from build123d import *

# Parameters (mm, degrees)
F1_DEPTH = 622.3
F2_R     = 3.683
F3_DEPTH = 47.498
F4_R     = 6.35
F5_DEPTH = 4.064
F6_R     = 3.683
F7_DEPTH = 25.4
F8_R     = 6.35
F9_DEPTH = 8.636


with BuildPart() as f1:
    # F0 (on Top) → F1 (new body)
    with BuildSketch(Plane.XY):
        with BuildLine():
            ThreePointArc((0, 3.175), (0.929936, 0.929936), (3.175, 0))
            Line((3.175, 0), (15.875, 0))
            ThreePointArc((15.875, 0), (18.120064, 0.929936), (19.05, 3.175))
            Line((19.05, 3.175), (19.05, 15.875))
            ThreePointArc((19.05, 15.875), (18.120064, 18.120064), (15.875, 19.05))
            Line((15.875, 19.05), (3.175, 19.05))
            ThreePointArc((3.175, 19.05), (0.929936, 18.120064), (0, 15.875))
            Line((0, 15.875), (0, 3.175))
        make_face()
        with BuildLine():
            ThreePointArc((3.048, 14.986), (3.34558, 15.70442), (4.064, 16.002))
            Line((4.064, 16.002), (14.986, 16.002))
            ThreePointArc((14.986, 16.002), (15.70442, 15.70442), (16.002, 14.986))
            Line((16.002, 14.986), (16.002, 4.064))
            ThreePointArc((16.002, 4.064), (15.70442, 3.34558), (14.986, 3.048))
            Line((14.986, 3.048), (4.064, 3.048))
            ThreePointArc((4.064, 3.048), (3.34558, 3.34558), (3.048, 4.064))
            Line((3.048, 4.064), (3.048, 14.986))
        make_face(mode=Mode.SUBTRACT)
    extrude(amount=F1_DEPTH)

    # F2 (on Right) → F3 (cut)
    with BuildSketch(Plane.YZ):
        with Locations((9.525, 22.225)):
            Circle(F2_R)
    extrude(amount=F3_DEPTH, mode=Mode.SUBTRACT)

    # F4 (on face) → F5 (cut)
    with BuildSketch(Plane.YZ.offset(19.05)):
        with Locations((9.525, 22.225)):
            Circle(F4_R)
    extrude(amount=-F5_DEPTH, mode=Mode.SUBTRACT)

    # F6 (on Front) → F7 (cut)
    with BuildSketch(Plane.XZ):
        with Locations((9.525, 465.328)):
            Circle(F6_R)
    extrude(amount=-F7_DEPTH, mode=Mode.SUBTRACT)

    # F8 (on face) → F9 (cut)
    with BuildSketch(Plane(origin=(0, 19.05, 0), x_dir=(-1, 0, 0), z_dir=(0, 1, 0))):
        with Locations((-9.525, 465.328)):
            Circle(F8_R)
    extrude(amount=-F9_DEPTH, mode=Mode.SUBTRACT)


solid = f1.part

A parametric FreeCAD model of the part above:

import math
import FreeCAD as App
import Part
import Sketcher

V = App.Vector
Q = App.Units.Quantity

doc = App.newDocument("Part")
body = doc.addObject("PartDesign::Body", "Body")

# Sketch on XY plane
sketch1 = doc.addObject("Sketcher::SketchObject", "Sketch")
body.addObject(sketch1)
sketch1.AttachmentSupport = (doc.XY_Plane, [""])
sketch1.MapMode = "FlatFace"
sketch1.addGeometry(Part.ArcOfCircle(Part.Circle(V(3.175, 3.175, 0), V(0, 0, 1), 3.175), math.radians(-179.999998), math.radians(-90.000002)), False)
sketch1.addGeometry(Part.LineSegment(V(3.175, 0, 0), V(15.875, 0, 0)), False)
sketch1.addGeometry(Part.ArcOfCircle(Part.Circle(V(15.875, 3.175, 0), V(0, 0, 1), 3.175), math.radians(-89.999998), math.radians(-0.000002)), False)
sketch1.addGeometry(Part.LineSegment(V(19.05, 3.175, 0), V(19.05, 15.875, 0)), False)
sketch1.addGeometry(Part.ArcOfCircle(Part.Circle(V(15.875, 15.875, 0), V(0, 0, 1), 3.175), math.radians(0.000002), math.radians(89.999998)), False)
sketch1.addGeometry(Part.LineSegment(V(15.875, 19.05, 0), V(3.175, 19.05, 0)), False)
sketch1.addGeometry(Part.ArcOfCircle(Part.Circle(V(3.175, 15.875, 0), V(0, 0, 1), 3.175), math.radians(90.000002), math.radians(179.999998)), False)
sketch1.addGeometry(Part.LineSegment(V(0, 15.875, 0), V(0, 3.175, 0)), False)
sketch1.addGeometry(Part.LineSegment(V(3.048, 4.064, 0), V(3.048, 14.986, 0)), False)
sketch1.addGeometry(Part.ArcOfCircle(Part.Circle(V(4.064002, 14.985998, 0), V(0, 0, 1), 1.016002), math.radians(90.000094), math.radians(179.999906)), False)
sketch1.addGeometry(Part.LineSegment(V(4.064, 16.002, 0), V(14.986, 16.002, 0)), False)
sketch1.addGeometry(Part.ArcOfCircle(Part.Circle(V(14.985998, 14.985998, 0), V(0, 0, 1), 1.016002), math.radians(0.000094), math.radians(89.999906)), False)
sketch1.addGeometry(Part.LineSegment(V(16.002, 14.986, 0), V(16.002, 4.064, 0)), False)
sketch1.addGeometry(Part.ArcOfCircle(Part.Circle(V(14.985998, 4.064002, 0), V(0, 0, 1), 1.016002), math.radians(-89.999906), math.radians(-0.000094)), False)
sketch1.addGeometry(Part.LineSegment(V(14.986, 3.048, 0), V(4.064, 3.048, 0)), False)
sketch1.addGeometry(Part.ArcOfCircle(Part.Circle(V(4.064002, 4.064002, 0), V(0, 0, 1), 1.016002), math.radians(-179.999906), math.radians(-90.000094)), False)
sketch1.addConstraint(Sketcher.Constraint("Tangent", 0, 2, 1, 1))
sketch1.addConstraint(Sketcher.Constraint("Tangent", 1, 2, 2, 1))
sketch1.addConstraint(Sketcher.Constraint("Tangent", 2, 2, 3, 1))
sketch1.addConstraint(Sketcher.Constraint("Tangent", 3, 2, 4, 1))
sketch1.addConstraint(Sketcher.Constraint("Tangent", 4, 2, 5, 1))
sketch1.addConstraint(Sketcher.Constraint("Tangent", 5, 2, 6, 1))
sketch1.addConstraint(Sketcher.Constraint("Tangent", 6, 2, 7, 1))
sketch1.addConstraint(Sketcher.Constraint("Tangent", 7, 2, 0, 1))
sketch1.addConstraint(Sketcher.Constraint("Tangent", 8, 2, 9, 2))
sketch1.addConstraint(Sketcher.Constraint("Tangent", 9, 1, 10, 1))
sketch1.addConstraint(Sketcher.Constraint("Tangent", 10, 2, 11, 2))
sketch1.addConstraint(Sketcher.Constraint("Tangent", 11, 1, 12, 1))
sketch1.addConstraint(Sketcher.Constraint("Tangent", 12, 2, 13, 2))
sketch1.addConstraint(Sketcher.Constraint("Tangent", 13, 1, 14, 1))
sketch1.addConstraint(Sketcher.Constraint("Tangent", 14, 2, 15, 2))
sketch1.addConstraint(Sketcher.Constraint("Tangent", 15, 1, 8, 1))
sketch1.addConstraint(Sketcher.Constraint("Horizontal", 1))
sketch1.addConstraint(Sketcher.Constraint("Vertical", 3))
sketch1.addConstraint(Sketcher.Constraint("Horizontal", 5))
sketch1.addConstraint(Sketcher.Constraint("Vertical", 7))
sketch1.addConstraint(Sketcher.Constraint("Vertical", 8))
sketch1.addConstraint(Sketcher.Constraint("Horizontal", 10))
sketch1.addConstraint(Sketcher.Constraint("Vertical", 12))
sketch1.addConstraint(Sketcher.Constraint("Horizontal", 14))
sketch1.addConstraint(Sketcher.Constraint("Equal", 0, 2))
sketch1.addConstraint(Sketcher.Constraint("Equal", 2, 4))
sketch1.addConstraint(Sketcher.Constraint("Equal", 4, 6))
sketch1.addConstraint(Sketcher.Constraint("Equal", 9, 11))
sketch1.addConstraint(Sketcher.Constraint("Equal", 11, 13))
sketch1.addConstraint(Sketcher.Constraint("Equal", 13, 15))
sketch1.addConstraint(Sketcher.Constraint("PointOnObject", 0, 2, -1))
sketch1.addConstraint(Sketcher.Constraint("PointOnObject", 6, 2, -2))
sketch1.addConstraint(Sketcher.Constraint("Equal", 5, 3))
sketch1.addConstraint(Sketcher.Constraint("Equal", 14, 8))
sketch1.addConstraint(Sketcher.Constraint("Radius", 9, Q("0.0400001 in")))
sketch1.addConstraint(Sketcher.Constraint("DistanceX", 1, 1, 1, 2, Q("0.5 in")))
sketch1.addConstraint(Sketcher.Constraint("Radius", 0, Q("0.125 in")))
sketch1.addConstraint(Sketcher.Constraint("DistanceX", 10, 1, 10, 2, Q("0.43 in")))
sketch1.addConstraint(Sketcher.Constraint("DistanceX", -1, 1, 9, 3, Q("0.1600001 in")))
sketch1.addConstraint(Sketcher.Constraint("DistanceY", -1, 1, 9, 3, Q("0.5899999 in")))
pad1 = doc.addObject("PartDesign::Pad", "Pad")
body.addObject(pad1)
pad1.Profile = sketch1
pad1.Length = Q("24.5 in")

# Sketch on YZ plane
sketch2 = doc.addObject("Sketcher::SketchObject", "Sketch001")
body.addObject(sketch2)
sketch2.AttachmentSupport = (doc.YZ_Plane, [""])
sketch2.MapMode = "FlatFace"
sketch2.addGeometry(Part.Circle(V(9.525, 22.225, 0), V(0, 0, 1), 3.683), False)
sketch2.addConstraint(Sketcher.Constraint("Diameter", 0, Q("0.29 in")))
sketch2.addConstraint(Sketcher.Constraint("DistanceX", -1, 1, 0, 3, Q("0.375 in")))
sketch2.addConstraint(Sketcher.Constraint("DistanceY", -1, 1, 0, 3, Q("0.875 in")))
pocket1 = doc.addObject("PartDesign::Pocket", "Pocket")
body.addObject(pocket1)
pocket1.Profile = sketch2
pocket1.Length = Q("1.87 in")
pocket1.Reversed = True

# Sketch on YZ plane
sketch3 = doc.addObject("Sketcher::SketchObject", "Sketch002")
body.addObject(sketch3)
sketch3.AttachmentSupport = (doc.YZ_Plane, [""])
sketch3.MapMode = "FlatFace"
sketch3.AttachmentOffset = App.Placement(V(0, 0, 0.75 * 25.4), App.Rotation())
sketch3.addGeometry(Part.Circle(V(9.525, 22.225, 0), V(0, 0, 1), 6.35), False)
sketch3.addConstraint(Sketcher.Constraint("Diameter", 0, Q("0.5 in")))
sketch3.addConstraint(Sketcher.Constraint("DistanceX", -1, 1, 0, 3, Q("0.375 in")))
sketch3.addConstraint(Sketcher.Constraint("DistanceY", -1, 1, 0, 3, Q("0.875 in")))
pocket2 = doc.addObject("PartDesign::Pocket", "Pocket001")
body.addObject(pocket2)
pocket2.Profile = sketch3
pocket2.Length = Q("0.16 in")

# Sketch on XZ plane
sketch4 = doc.addObject("Sketcher::SketchObject", "Sketch003")
body.addObject(sketch4)
sketch4.AttachmentSupport = (doc.XZ_Plane, [""])
sketch4.MapMode = "FlatFace"
sketch4.addGeometry(Part.Circle(V(9.525, 465.328, 0), V(0, 0, 1), 3.683), False)
sketch4.addConstraint(Sketcher.Constraint("Diameter", 0, Q("0.29 in")))
sketch4.addConstraint(Sketcher.Constraint("DistanceY", -1, 1, 0, 3, Q("18.32 in")))
sketch4.addConstraint(Sketcher.Constraint("DistanceX", -1, 1, 0, 3, Q("0.375 in")))
pocket3 = doc.addObject("PartDesign::Pocket", "Pocket002")
body.addObject(pocket3)
pocket3.Profile = sketch4
pocket3.Length = Q("1 in")

# Sketch on XZ plane
sketch5 = doc.addObject("Sketcher::SketchObject", "Sketch004")
body.addObject(sketch5)
sketch5.AttachmentSupport = (doc.XZ_Plane, [""])
sketch5.MapMode = "FlatFace"
sketch5.AttachmentOffset = App.Placement(V(0, 0, -0.75 * 25.4), App.Rotation())
sketch5.addGeometry(Part.Circle(V(9.525, 465.328, 0), V(0, 0, 1), 6.35), False)
sketch5.addConstraint(Sketcher.Constraint("Diameter", 0, Q("0.5 in")))
sketch5.addConstraint(Sketcher.Constraint("DistanceY", -1, 1, 0, 3, Q("18.32 in")))
sketch5.addConstraint(Sketcher.Constraint("DistanceX", -1, 1, 0, 3, Q("0.375 in")))
pocket4 = doc.addObject("PartDesign::Pocket", "Pocket003")
body.addObject(pocket4)
pocket4.Profile = sketch5
pocket4.Length = Q("0.34 in")
pocket4.Reversed = True

doc.recompute()
